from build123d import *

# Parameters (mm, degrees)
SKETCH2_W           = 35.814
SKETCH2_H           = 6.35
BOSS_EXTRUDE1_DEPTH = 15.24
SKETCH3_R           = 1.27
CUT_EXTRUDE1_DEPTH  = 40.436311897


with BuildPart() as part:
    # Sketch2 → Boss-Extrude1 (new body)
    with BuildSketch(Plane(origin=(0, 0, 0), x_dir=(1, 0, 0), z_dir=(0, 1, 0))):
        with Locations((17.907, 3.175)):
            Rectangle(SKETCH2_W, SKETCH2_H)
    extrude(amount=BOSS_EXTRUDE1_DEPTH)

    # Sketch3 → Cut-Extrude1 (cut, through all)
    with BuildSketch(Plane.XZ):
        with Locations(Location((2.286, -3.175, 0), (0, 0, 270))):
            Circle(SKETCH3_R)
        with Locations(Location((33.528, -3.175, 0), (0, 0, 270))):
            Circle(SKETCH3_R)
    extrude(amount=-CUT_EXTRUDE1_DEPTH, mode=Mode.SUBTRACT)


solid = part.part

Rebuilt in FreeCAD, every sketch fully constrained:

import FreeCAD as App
import Part
import Sketcher
from FreeCAD import Vector
Q = App.Units.Quantity


def add_polygon(sketch, points):
    """Adds a closed chain of lines whose ends are joined by coincident constraints."""
    first, n = sketch.GeometryCount, len(points)
    for a, b in zip(points, points[1:] + points[:1]):
        sketch.addGeometry(Part.LineSegment(App.Vector(*a, 0), App.Vector(*b, 0)), False)
    for i in range(n):
        sketch.addConstraint(Sketcher.Constraint("Coincident", first + i, 2, first + (i + 1) % n, 1))

doc = App.newDocument("Part")
body = doc.addObject("PartDesign::Body", "Body")

# Sketch on XZ plane
sketch1 = doc.addObject("Sketcher::SketchObject", "Sketch")
body.addObject(sketch1)
sketch1.AttachmentSupport = (doc.XZ_Plane, [""])
sketch1.MapMode = "FlatFace"
add_polygon(sketch1, [(0, -6.35), (0, 0), (35.814, 0), (35.814, -6.35)])  # lines 0-3
sketch1.addConstraint(Sketcher.Constraint("Vertical", 0))
sketch1.addConstraint(Sketcher.Constraint("Horizontal", 1))
sketch1.addConstraint(Sketcher.Constraint("Vertical", 2))
sketch1.addConstraint(Sketcher.Constraint("Horizontal", 3))
sketch1.addConstraint(Sketcher.Constraint("Coincident", 0, 2, -1, 1))
sketch1.addConstraint(Sketcher.Constraint("DistanceX", 1, 1, 1, 2, Q("1.41 in")))
sketch1.addConstraint(Sketcher.Constraint("DistanceY", 0, 1, 0, 2, Q("0.25 in")))
pad1 = doc.addObject("PartDesign::Pad", "Pad")
body.addObject(pad1)
pad1.Profile = sketch1
pad1.Length = Q("0.6 in")
pad1.Reversed = True

# Sketch on XZ plane
sketch2 = doc.addObject("Sketcher::SketchObject", "Sketch001")
body.addObject(sketch2)
sketch2.AttachmentSupport = (doc.XZ_Plane, [""])
sketch2.MapMode = "FlatFace"
sketch2.addGeometry(Part.Circle(Vector(2.286, -3.175, 0), Vector(0, 0, 1), 1.27), False)
sketch2.addGeometry(Part.Circle(Vector(33.528, -3.175, 0), Vector(0, 0, 1), 1.27), False)
sketch2.addConstraint(Sketcher.Constraint("Equal", 0, 1))
sketch2.addConstraint(Sketcher.Constraint("Horizontal", 0, 3, 1, 3))
sketch2.addConstraint(Sketcher.Constraint("Diameter", 0, Q("0.1 in")))
sketch2.addConstraint(Sketcher.Constraint("DistanceX", -1, 1, 0, 3, Q("0.09 in")))
sketch2.addConstraint(Sketcher.Constraint("DistanceX", -1, 1, 1, 3, Q("1.32 in")))
sketch2.addConstraint(Sketcher.Constraint("DistanceY", 0, 3, -1, 1, Q("0.125 in")))
pocket1 = doc.addObject("PartDesign::Pocket", "Pocket")
body.addObject(pocket1)
pocket1.Profile = sketch2
pocket1.Type = "ThroughAll"

doc.recompute()
